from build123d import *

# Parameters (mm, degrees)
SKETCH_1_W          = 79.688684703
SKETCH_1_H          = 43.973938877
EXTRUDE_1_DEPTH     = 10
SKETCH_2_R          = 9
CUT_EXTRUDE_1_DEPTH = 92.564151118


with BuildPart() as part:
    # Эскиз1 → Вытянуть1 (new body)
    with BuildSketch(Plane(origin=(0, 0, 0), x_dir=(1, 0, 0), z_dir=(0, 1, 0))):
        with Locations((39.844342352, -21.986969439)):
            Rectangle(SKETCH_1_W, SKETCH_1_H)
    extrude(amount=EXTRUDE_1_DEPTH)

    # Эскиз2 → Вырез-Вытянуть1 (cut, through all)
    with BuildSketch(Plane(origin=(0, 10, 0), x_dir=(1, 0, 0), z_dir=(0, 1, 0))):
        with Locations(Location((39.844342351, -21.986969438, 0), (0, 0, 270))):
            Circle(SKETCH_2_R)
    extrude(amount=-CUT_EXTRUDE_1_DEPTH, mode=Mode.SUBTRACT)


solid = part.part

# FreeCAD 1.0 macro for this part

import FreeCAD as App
import Part
import Sketcher
Q = App.Units.Quantity


def add_polygon(sketch, points):
    """Adds a closed chain of lines whose ends are joined by coincident constraints."""
    first, n = sketch.GeometryCount, len(points)
    for a, b in zip(points, points[1:] + points[:1]):
        sketch.addGeometry(Part.LineSegment(App.Vector(*a, 0), App.Vector(*b, 0)), False)
    for i in range(n):
        sketch.addConstraint(Sketcher.Constraint("Coincident", first + i, 2, first + (i + 1) % n, 1))

doc = App.newDocument("Part")
body = doc.addObject("PartDesign::Body", "Body")

# Sketch on XZ plane
sketch1 = doc.addObject("Sketcher::SketchObject", "Sketch")
body.addObject(sketch1)
sketch1.AttachmentSupport = (doc.XZ_Plane, [""])
sketch1.MapMode = "FlatFace"
add_polygon(sketch1, [(0, 0), (0, 43.973939), (79.688685, 43.973939), (79.688685, 0)])  # lines 0-3
sketch1.addConstraint([
    Sketcher.Constraint("Vertical", 0),
    Sketcher.Constraint("Horizontal", 1),
    Sketcher.Constraint("Vertical", 2),
    Sketcher.Constraint("Horizontal", 3),
    Sketcher.Constraint("Coincident", 3, 2, -1, 1),
    Sketcher.Constraint("DistanceY", 0, 1, 0, 2, Q("43.973939 mm")),
    Sketcher.Constraint("DistanceX", 1, 1, 1, 2, Q("79.688685 mm")),
])
pad1 = doc.addObject("PartDesign::Pad", "Pad")
body.addObject(pad1)
pad1.Profile = sketch1
pad1.Length = 10
pad1.Reversed = True

# Sketch on XZ plane
sketch2 = doc.addObject("Sketcher::SketchObject", "Sketch001")
body.addObject(sketch2)
sketch2.AttachmentSupport = (doc.XZ_Plane, [""])
sketch2.MapMode = "FlatFace"
sketch2.AttachmentOffset = App.Placement(App.Vector(0, 0, -10), App.Rotation())
sketch2.addGeometry(Part.Circle(App.Vector(39.844342, 21.986969, 0), App.Vector(0, 0, 1), 9), False)
sketch2.addConstraint([
    Sketcher.Constraint("Diameter", 0, Q("18 mm")),
    Sketcher.Constraint("DistanceY", -1, 1, 0, 3, Q("21.986969 mm")),
    Sketcher.Constraint("DistanceX", -1, 1, 0, 3, Q("39.844342 mm")),
])
pocket1 = doc.addObject("PartDesign::Pocket", "Pocket")
body.addObject(pocket1)
pocket1.Profile = sketch2
pocket1.Type = "ThroughAll"
pocket1.Reversed = True

doc.recompute()
